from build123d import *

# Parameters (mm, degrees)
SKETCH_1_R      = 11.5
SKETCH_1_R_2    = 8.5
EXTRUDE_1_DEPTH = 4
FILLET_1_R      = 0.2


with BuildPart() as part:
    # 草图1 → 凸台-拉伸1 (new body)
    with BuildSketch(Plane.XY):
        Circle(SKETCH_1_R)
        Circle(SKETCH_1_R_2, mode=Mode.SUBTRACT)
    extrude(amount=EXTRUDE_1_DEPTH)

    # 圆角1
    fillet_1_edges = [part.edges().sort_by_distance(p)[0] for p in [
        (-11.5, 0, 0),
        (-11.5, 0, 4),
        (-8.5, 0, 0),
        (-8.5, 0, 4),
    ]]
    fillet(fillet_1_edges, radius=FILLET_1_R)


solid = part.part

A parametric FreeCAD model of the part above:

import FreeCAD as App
import Part
import Sketcher
from FreeCAD import Vector
Q = App.Units.Quantity


def edges_at(feature, points):
    """Names of the edges that pass closest to the given points."""
    edges = feature.Shape.Edges
    near = lambda p: min(range(len(edges)), key=lambda i: edges[i].distToShape(Part.Vertex(*p))[0])
    return sorted({f"Edge{near(p) + 1}" for p in points})

doc = App.newDocument("Part")
body = doc.addObject("PartDesign::Body", "Body")

sketch1 = body.newObject("Sketcher::SketchObject", "Sketch")
sketch1.AttachmentSupport = (doc.getObject("XY_Plane"), [""])
sketch1.MapMode = "FlatFace"
sketch1.addGeometry([
    Part.Circle(Vector(0, 0, 0), Vector(0, 0, 1), 12),
    Part.Circle(Vector(0, 0, 0), Vector(0, 0, 1), 8),
], False)
sketch1.addConstraint([
    Sketcher.Constraint("Coincident", 0, 3, -1, 1),
    Sketcher.Constraint("Coincident", 1, 3, -1, 1),
    Sketcher.Constraint("Diameter", 0, Q("23 mm")),
    Sketcher.Constraint("Diameter", 1, Q("17 mm")),
])
pad1 = body.newObject("PartDesign::Pad", "Pad")
pad1.Profile = sketch1
pad1.Length = 4
doc.recompute()

fillet = body.newObject("PartDesign::Fillet", "Fillet")
fillet.Base = (pad1, edges_at(pad1, [
    (-11.5, 0, 0),
    (-11.5, 0, 4),
    (-8.5, 0, 0),
    (-8.5, 0, 4),
]))
fillet.Radius = 0.2

doc.recompute()
